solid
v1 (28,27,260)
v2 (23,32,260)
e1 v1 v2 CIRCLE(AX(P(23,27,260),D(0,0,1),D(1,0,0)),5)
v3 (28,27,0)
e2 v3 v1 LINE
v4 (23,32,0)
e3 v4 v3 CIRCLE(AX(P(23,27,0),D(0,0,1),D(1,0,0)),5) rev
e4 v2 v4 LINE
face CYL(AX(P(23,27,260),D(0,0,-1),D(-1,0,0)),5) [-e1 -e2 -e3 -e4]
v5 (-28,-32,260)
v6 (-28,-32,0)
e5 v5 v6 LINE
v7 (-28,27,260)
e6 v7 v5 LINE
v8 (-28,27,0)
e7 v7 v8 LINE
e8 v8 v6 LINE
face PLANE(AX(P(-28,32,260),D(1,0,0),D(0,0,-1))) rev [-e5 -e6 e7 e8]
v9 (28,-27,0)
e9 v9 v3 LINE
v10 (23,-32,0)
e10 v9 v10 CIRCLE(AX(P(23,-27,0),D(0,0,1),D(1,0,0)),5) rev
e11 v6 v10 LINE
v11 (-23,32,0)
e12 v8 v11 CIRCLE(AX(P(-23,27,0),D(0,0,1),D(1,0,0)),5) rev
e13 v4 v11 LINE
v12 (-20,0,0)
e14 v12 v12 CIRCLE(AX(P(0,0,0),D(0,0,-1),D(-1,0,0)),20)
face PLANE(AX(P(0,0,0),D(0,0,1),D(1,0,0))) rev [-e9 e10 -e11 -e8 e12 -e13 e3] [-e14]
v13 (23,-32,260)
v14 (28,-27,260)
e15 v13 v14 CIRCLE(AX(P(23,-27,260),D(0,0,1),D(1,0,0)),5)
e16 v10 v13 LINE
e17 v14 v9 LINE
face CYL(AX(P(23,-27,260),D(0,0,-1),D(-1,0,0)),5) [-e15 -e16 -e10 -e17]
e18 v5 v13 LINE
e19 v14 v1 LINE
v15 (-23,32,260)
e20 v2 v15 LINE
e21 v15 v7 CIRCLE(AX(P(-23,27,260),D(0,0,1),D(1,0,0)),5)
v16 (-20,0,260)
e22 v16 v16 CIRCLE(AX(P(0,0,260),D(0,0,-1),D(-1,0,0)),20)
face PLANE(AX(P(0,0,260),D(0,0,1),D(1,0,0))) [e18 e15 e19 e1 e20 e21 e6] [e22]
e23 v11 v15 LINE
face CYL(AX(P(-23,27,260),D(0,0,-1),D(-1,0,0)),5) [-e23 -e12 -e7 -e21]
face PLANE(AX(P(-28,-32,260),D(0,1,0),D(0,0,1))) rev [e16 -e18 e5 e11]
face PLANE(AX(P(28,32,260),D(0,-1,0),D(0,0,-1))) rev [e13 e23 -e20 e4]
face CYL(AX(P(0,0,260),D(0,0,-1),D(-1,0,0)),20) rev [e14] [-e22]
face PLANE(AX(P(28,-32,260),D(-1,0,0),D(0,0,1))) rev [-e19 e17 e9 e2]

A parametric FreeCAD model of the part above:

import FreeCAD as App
import Part
import Sketcher
from FreeCAD import Vector


def edges_at(feature, points):
    """Names of the edges that pass closest to the given points."""
    edges = feature.Shape.Edges
    near = lambda p: min(range(len(edges)), key=lambda i: edges[i].distToShape(Part.Vertex(*p))[0])
    return sorted({f"Edge{near(p) + 1}" for p in points})


def add_polygon(sketch, points):
    """Adds a closed chain of lines whose ends are joined by coincident constraints."""
    first, n = sketch.GeometryCount, len(points)
    for a, b in zip(points, points[1:] + points[:1]):
        sketch.addGeometry(Part.LineSegment(App.Vector(*a, 0), App.Vector(*b, 0)), False)
    for i in range(n):
        sketch.addConstraint(Sketcher.Constraint("Coincident", first + i, 2, first + (i + 1) % n, 1))

doc = App.newDocument("Part")
params = doc.addObject("Spreadsheet::Sheet", "Params")
for row, (alias, value) in enumerate([
    ("sketch1_width", "56 mm"),
    ("sketch1_height", "64 mm"),
    ("pad1_length", "260 mm"),
    ("sketch2_diameter", "40 mm"),
    ("fillet_radius", "5 mm"),
], start=1):
    params.set(f"A{row}", alias)
    params.set(f"B{row}", "=" + value)
    params.setAlias(f"B{row}", alias)

body = doc.addObject("PartDesign::Body", "Body")

sketch1 = body.newObject("Sketcher::SketchObject", "Sketch")
sketch1.AttachmentSupport = (doc.getObject("XY_Plane"), [""])
sketch1.MapMode = "FlatFace"
add_polygon(sketch1, [(-28, 32), (-28, -32), (28, -32), (28, 32)])
sketch1.addConstraint([
    Sketcher.Constraint("Vertical", 0),
    Sketcher.Constraint("Horizontal", 1),
    Sketcher.Constraint("Vertical", 2),
    Sketcher.Constraint("Horizontal", 3),
    Sketcher.Constraint("Symmetric", 0, 2, 2, 2, -1, 1),
    Sketcher.Constraint("DistanceX", 1, 1, 1, 2, 56.0),
    Sketcher.Constraint("DistanceY", 0, 2, 0, 1, 64.0),
])
sketch1.setExpression("Constraints[9]", "Params.sketch1_width")
sketch1.setExpression("Constraints[10]", "Params.sketch1_height")
pad1 = body.newObject("PartDesign::Pad", "Pad")
pad1.Profile = sketch1
pad1.setExpression("Length", "Params.pad1_length")

sketch2 = body.newObject("Sketcher::SketchObject", "Sketch001")
sketch2.AttachmentSupport = (doc.getObject("XY_Plane"), [""])
sketch2.MapMode = "FlatFace"
sketch2.addGeometry(Part.Circle(Vector(0, 0, 0), Vector(0, 0, 1), 20), False)
sketch2.addConstraint([
    Sketcher.Constraint("Coincident", 0, 3, -1, 1),
    Sketcher.Constraint("Diameter", 0, 40.0),
])
sketch2.setExpression("Constraints[1]", "Params.sketch2_diameter")
pocket1 = body.newObject("PartDesign::Pocket", "Pocket")
pocket1.Profile = sketch2
pocket1.Type = "ThroughAll"
pocket1.Reversed = True
doc.recompute()

fillet = body.newObject("PartDesign::Fillet", "Fillet")
fillet.Base = (pocket1, edges_at(pocket1, [(-28, 32, 130), (28, 32, 130), (28, -32, 130)]))
fillet.setExpression("Radius", "Params.fillet_radius")

doc.recompute()
